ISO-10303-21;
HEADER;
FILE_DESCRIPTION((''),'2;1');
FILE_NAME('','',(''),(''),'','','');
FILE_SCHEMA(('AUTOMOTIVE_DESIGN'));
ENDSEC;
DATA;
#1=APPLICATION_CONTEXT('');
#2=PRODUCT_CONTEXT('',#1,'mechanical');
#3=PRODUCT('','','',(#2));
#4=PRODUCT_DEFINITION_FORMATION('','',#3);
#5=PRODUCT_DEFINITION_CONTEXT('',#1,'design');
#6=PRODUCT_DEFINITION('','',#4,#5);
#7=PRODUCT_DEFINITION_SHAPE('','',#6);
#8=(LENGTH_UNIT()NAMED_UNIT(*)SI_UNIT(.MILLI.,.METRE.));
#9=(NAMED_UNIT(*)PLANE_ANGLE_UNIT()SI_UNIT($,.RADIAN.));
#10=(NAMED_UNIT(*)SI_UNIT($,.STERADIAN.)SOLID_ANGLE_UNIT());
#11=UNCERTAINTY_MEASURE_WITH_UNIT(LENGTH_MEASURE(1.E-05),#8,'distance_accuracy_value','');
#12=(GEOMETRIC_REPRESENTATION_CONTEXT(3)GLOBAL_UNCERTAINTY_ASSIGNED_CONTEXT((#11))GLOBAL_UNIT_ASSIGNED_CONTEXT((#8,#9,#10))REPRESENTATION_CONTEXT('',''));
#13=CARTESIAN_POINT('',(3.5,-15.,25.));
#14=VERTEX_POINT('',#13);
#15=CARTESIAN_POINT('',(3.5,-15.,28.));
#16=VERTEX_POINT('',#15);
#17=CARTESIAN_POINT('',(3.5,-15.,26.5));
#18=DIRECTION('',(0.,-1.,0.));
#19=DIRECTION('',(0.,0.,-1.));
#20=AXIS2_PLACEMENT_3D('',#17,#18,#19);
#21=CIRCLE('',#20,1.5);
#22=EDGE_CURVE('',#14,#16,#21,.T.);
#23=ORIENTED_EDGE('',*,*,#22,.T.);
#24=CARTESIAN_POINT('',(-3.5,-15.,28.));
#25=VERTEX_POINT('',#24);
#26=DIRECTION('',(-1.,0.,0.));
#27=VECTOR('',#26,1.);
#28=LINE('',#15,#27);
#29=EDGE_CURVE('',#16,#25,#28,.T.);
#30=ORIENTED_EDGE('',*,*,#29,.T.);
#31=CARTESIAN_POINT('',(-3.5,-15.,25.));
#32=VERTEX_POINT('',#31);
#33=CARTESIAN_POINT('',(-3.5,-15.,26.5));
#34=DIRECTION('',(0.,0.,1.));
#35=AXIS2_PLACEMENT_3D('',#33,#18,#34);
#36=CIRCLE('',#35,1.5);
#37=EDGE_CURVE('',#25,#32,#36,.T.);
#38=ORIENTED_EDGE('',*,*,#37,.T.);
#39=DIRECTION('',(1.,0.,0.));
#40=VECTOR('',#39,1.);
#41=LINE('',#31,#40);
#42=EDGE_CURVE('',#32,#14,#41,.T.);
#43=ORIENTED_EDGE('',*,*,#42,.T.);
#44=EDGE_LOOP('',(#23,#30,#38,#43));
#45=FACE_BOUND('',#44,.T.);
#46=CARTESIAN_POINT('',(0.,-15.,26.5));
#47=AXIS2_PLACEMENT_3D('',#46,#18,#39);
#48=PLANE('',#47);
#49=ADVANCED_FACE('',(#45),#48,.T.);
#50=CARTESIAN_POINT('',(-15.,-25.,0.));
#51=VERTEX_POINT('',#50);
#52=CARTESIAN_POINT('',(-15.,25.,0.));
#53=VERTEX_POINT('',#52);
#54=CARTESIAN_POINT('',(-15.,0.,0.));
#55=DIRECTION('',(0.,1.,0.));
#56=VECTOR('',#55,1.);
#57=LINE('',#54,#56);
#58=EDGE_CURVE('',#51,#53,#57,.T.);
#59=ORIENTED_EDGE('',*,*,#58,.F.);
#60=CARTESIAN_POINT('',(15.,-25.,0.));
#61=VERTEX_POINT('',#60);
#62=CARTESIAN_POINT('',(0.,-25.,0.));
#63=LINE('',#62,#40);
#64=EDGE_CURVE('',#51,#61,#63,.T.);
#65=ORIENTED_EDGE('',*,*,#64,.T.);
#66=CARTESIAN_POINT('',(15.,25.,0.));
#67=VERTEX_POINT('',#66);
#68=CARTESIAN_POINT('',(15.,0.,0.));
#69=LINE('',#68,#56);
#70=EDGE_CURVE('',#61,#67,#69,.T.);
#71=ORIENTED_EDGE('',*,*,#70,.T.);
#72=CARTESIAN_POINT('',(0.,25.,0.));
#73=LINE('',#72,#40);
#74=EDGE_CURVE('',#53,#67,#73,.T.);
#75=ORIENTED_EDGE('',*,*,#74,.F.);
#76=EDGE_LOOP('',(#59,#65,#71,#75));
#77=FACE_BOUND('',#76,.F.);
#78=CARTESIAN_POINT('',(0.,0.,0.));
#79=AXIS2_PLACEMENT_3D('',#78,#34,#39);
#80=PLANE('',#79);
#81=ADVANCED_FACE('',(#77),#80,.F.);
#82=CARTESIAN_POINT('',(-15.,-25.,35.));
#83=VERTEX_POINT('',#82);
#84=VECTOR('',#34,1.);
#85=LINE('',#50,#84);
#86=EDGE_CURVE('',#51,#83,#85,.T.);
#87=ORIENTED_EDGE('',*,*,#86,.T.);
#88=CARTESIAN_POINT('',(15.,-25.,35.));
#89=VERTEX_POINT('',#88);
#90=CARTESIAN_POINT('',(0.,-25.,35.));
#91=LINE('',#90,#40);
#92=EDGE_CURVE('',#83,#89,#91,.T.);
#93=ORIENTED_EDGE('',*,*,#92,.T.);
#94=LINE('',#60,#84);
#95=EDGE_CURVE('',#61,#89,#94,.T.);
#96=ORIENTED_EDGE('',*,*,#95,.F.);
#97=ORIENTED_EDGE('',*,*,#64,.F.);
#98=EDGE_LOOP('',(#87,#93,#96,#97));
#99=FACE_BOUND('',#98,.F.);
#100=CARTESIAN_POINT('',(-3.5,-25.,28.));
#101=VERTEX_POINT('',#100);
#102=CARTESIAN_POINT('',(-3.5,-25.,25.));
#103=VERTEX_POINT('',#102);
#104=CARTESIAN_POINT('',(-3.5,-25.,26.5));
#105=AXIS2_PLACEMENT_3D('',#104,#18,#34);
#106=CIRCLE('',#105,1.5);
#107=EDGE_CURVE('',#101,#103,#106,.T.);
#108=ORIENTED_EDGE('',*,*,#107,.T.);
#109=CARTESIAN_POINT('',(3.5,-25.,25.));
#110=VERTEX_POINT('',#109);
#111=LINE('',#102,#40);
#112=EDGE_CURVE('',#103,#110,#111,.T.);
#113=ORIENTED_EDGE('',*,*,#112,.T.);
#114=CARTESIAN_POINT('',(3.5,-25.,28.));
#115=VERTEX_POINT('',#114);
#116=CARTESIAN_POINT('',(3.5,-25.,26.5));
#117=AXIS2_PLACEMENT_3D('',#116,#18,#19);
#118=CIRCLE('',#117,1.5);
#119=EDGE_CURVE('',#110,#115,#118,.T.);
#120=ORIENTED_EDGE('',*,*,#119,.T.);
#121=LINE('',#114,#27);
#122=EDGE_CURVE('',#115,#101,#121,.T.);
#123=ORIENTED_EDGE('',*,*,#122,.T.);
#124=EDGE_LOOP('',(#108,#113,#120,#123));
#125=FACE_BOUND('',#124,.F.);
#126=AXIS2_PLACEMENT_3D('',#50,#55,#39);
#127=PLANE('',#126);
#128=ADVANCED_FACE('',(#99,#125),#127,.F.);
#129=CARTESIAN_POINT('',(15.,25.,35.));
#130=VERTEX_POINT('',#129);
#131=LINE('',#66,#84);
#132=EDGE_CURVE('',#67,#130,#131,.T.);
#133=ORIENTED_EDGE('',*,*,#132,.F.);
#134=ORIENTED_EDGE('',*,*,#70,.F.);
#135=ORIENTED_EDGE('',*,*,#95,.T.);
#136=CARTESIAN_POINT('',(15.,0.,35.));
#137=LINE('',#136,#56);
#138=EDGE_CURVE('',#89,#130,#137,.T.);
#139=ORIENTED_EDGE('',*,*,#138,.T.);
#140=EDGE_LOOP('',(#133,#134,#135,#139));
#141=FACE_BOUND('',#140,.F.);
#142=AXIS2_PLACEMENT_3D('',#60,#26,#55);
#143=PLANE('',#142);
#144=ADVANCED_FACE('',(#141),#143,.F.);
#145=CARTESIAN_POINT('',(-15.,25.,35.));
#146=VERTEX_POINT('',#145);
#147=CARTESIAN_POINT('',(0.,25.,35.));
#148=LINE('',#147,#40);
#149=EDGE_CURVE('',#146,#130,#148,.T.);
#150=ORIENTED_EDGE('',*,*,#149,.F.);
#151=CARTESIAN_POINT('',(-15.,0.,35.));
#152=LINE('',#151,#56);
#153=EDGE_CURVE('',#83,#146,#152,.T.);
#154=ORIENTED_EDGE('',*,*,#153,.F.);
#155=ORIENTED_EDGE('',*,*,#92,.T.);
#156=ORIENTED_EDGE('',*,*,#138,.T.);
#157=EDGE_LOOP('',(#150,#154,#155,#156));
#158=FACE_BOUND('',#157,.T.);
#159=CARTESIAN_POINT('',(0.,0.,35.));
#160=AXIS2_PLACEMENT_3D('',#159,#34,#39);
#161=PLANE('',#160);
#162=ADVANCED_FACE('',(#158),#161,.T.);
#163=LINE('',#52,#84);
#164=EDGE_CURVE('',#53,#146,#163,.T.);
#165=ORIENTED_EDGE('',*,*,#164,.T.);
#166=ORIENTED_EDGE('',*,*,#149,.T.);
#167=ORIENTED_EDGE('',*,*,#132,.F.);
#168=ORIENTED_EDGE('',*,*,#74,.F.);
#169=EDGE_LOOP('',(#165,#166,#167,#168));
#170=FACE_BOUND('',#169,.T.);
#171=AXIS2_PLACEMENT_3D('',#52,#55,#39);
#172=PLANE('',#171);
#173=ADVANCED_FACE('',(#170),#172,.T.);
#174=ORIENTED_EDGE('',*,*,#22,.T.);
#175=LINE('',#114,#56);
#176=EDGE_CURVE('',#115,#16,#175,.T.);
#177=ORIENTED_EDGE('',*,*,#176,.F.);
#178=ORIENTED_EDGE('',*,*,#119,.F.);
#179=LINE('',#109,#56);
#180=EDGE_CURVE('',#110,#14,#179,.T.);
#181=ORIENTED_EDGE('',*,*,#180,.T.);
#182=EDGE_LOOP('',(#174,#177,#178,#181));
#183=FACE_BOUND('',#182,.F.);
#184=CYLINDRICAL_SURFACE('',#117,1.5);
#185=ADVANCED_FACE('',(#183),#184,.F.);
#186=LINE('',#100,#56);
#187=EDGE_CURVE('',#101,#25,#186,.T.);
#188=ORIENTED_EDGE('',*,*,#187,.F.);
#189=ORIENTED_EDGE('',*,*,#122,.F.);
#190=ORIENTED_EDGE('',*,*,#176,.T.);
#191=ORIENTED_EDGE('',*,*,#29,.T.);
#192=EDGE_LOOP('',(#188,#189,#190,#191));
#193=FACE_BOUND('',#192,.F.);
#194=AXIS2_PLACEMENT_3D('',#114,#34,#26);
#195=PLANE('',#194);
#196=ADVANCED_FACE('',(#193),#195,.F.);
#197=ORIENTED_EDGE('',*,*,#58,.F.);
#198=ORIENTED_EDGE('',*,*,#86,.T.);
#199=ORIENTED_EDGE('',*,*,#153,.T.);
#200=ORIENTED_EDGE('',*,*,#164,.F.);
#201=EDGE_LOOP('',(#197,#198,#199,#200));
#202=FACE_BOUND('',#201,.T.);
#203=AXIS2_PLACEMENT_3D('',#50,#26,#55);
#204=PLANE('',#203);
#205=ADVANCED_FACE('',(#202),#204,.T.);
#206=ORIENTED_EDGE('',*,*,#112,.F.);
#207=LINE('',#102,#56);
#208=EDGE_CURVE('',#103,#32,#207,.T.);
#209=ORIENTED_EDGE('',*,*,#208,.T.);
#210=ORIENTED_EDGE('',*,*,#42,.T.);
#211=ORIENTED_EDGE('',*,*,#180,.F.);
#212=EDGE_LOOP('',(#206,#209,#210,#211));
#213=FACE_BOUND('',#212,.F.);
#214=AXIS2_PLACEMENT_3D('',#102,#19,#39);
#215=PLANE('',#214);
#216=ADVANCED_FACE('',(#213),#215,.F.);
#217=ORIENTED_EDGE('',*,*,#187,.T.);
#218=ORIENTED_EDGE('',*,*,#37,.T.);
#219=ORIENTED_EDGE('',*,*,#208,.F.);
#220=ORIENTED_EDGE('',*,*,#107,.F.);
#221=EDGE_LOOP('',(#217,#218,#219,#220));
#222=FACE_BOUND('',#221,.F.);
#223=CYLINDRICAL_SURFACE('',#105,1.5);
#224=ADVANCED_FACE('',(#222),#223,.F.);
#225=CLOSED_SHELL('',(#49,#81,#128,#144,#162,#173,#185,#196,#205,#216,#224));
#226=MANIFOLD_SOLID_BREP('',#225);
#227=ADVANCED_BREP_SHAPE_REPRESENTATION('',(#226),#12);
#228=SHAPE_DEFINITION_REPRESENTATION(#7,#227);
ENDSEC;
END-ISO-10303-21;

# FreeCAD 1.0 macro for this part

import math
import FreeCAD as App
import Part
import Sketcher
from FreeCAD import Vector


def add_polygon(sketch, points):
    """Adds a closed chain of lines whose ends are joined by coincident constraints."""
    first, n = sketch.GeometryCount, len(points)
    for a, b in zip(points, points[1:] + points[:1]):
        sketch.addGeometry(Part.LineSegment(App.Vector(*a, 0), App.Vector(*b, 0)), False)
    for i in range(n):
        sketch.addConstraint(Sketcher.Constraint("Coincident", first + i, 2, first + (i + 1) % n, 1))

doc = App.newDocument("Part")
params = doc.addObject("Spreadsheet::Sheet", "Params")
for row, (alias, value) in enumerate([
    ("sketch1_width", "30 mm"),
    ("sketch1_height", "50 mm"),
    ("pad1_length", "35 mm"),
    ("sketch2_radius", "1.5 mm"),
    ("sketch2_width", "7 mm"),
    ("pocket1_length", "10 mm"),
], start=1):
    params.set(f"A{row}", alias)
    params.set(f"B{row}", "=" + value)
    params.setAlias(f"B{row}", alias)

body = doc.addObject("PartDesign::Body", "Body")

sketch1 = body.newObject("Sketcher::SketchObject", "Sketch")
sketch1.AttachmentSupport = (doc.getObject("XY_Plane"), [""])
sketch1.MapMode = "FlatFace"
add_polygon(sketch1, [(-15, 25), (-15, -25), (15, -25), (15, 25)])
sketch1.addConstraint([
    Sketcher.Constraint("Vertical", 0),
    Sketcher.Constraint("Horizontal", 1),
    Sketcher.Constraint("Vertical", 2),
    Sketcher.Constraint("Horizontal", 3),
    Sketcher.Constraint("Symmetric", 0, 2, 2, 2, -1, 1),
    Sketcher.Constraint("DistanceX", 1, 1, 1, 2, 30.0),
    Sketcher.Constraint("DistanceY", 0, 2, 0, 1, 50.0),
])
sketch1.setExpression("Constraints[9]", "Params.sketch1_width")
sketch1.setExpression("Constraints[10]", "Params.sketch1_height")
pad1 = body.newObject("PartDesign::Pad", "Pad")
pad1.Profile = sketch1
pad1.setExpression("Length", "Params.pad1_length")

sketch2 = body.newObject("Sketcher::SketchObject", "Sketch001")
sketch2.AttachmentSupport = (doc.getObject("XZ_Plane"), [""])
sketch2.MapMode = "FlatFace"
sketch2.AttachmentOffset = App.Placement(Vector(0, 0, 25), App.Rotation())
sketch2.addGeometry([
    Part.LineSegment(Vector(-3.5, 25, 0), Vector(3.5, 25, 0)),
    Part.ArcOfCircle(Part.Circle(Vector(3.5, 26.5, 0), Vector(0, 0, 1), 1.5), math.radians(-90), math.radians(90)),
    Part.LineSegment(Vector(3.5, 28, 0), Vector(-3.5, 28, 0)),
    Part.ArcOfCircle(Part.Circle(Vector(-3.5, 26.5, 0), Vector(0, 0, 1), 1.5), math.radians(90), math.radians(270)),
], False)
sketch2.addConstraint([
    Sketcher.Constraint("Tangent", 0, 2, 1, 1),
    Sketcher.Constraint("Tangent", 1, 2, 2, 1),
    Sketcher.Constraint("Tangent", 2, 2, 3, 1),
    Sketcher.Constraint("Tangent", 3, 2, 0, 1),
    Sketcher.Constraint("Horizontal", 0),
    Sketcher.Constraint("Horizontal", 2),
    Sketcher.Constraint("Radius", 1, 1.5),
    Sketcher.Constraint("DistanceX", 0, 1, 0, 2, 7.0),
    Sketcher.Constraint("DistanceY", -1, 1, 0, 2, 25.0),
    Sketcher.Constraint("DistanceX", -1, 1, 1, 3, 3.5),
])
sketch2.setExpression("Constraints[6]", "Params.sketch2_radius")
sketch2.setExpression("Constraints[7]", "Params.sketch2_width")
pocket1 = body.newObject("PartDesign::Pocket", "Pocket")
pocket1.Profile = sketch2
pocket1.setExpression("Length", "Params.pocket1_length")

doc.recompute()
